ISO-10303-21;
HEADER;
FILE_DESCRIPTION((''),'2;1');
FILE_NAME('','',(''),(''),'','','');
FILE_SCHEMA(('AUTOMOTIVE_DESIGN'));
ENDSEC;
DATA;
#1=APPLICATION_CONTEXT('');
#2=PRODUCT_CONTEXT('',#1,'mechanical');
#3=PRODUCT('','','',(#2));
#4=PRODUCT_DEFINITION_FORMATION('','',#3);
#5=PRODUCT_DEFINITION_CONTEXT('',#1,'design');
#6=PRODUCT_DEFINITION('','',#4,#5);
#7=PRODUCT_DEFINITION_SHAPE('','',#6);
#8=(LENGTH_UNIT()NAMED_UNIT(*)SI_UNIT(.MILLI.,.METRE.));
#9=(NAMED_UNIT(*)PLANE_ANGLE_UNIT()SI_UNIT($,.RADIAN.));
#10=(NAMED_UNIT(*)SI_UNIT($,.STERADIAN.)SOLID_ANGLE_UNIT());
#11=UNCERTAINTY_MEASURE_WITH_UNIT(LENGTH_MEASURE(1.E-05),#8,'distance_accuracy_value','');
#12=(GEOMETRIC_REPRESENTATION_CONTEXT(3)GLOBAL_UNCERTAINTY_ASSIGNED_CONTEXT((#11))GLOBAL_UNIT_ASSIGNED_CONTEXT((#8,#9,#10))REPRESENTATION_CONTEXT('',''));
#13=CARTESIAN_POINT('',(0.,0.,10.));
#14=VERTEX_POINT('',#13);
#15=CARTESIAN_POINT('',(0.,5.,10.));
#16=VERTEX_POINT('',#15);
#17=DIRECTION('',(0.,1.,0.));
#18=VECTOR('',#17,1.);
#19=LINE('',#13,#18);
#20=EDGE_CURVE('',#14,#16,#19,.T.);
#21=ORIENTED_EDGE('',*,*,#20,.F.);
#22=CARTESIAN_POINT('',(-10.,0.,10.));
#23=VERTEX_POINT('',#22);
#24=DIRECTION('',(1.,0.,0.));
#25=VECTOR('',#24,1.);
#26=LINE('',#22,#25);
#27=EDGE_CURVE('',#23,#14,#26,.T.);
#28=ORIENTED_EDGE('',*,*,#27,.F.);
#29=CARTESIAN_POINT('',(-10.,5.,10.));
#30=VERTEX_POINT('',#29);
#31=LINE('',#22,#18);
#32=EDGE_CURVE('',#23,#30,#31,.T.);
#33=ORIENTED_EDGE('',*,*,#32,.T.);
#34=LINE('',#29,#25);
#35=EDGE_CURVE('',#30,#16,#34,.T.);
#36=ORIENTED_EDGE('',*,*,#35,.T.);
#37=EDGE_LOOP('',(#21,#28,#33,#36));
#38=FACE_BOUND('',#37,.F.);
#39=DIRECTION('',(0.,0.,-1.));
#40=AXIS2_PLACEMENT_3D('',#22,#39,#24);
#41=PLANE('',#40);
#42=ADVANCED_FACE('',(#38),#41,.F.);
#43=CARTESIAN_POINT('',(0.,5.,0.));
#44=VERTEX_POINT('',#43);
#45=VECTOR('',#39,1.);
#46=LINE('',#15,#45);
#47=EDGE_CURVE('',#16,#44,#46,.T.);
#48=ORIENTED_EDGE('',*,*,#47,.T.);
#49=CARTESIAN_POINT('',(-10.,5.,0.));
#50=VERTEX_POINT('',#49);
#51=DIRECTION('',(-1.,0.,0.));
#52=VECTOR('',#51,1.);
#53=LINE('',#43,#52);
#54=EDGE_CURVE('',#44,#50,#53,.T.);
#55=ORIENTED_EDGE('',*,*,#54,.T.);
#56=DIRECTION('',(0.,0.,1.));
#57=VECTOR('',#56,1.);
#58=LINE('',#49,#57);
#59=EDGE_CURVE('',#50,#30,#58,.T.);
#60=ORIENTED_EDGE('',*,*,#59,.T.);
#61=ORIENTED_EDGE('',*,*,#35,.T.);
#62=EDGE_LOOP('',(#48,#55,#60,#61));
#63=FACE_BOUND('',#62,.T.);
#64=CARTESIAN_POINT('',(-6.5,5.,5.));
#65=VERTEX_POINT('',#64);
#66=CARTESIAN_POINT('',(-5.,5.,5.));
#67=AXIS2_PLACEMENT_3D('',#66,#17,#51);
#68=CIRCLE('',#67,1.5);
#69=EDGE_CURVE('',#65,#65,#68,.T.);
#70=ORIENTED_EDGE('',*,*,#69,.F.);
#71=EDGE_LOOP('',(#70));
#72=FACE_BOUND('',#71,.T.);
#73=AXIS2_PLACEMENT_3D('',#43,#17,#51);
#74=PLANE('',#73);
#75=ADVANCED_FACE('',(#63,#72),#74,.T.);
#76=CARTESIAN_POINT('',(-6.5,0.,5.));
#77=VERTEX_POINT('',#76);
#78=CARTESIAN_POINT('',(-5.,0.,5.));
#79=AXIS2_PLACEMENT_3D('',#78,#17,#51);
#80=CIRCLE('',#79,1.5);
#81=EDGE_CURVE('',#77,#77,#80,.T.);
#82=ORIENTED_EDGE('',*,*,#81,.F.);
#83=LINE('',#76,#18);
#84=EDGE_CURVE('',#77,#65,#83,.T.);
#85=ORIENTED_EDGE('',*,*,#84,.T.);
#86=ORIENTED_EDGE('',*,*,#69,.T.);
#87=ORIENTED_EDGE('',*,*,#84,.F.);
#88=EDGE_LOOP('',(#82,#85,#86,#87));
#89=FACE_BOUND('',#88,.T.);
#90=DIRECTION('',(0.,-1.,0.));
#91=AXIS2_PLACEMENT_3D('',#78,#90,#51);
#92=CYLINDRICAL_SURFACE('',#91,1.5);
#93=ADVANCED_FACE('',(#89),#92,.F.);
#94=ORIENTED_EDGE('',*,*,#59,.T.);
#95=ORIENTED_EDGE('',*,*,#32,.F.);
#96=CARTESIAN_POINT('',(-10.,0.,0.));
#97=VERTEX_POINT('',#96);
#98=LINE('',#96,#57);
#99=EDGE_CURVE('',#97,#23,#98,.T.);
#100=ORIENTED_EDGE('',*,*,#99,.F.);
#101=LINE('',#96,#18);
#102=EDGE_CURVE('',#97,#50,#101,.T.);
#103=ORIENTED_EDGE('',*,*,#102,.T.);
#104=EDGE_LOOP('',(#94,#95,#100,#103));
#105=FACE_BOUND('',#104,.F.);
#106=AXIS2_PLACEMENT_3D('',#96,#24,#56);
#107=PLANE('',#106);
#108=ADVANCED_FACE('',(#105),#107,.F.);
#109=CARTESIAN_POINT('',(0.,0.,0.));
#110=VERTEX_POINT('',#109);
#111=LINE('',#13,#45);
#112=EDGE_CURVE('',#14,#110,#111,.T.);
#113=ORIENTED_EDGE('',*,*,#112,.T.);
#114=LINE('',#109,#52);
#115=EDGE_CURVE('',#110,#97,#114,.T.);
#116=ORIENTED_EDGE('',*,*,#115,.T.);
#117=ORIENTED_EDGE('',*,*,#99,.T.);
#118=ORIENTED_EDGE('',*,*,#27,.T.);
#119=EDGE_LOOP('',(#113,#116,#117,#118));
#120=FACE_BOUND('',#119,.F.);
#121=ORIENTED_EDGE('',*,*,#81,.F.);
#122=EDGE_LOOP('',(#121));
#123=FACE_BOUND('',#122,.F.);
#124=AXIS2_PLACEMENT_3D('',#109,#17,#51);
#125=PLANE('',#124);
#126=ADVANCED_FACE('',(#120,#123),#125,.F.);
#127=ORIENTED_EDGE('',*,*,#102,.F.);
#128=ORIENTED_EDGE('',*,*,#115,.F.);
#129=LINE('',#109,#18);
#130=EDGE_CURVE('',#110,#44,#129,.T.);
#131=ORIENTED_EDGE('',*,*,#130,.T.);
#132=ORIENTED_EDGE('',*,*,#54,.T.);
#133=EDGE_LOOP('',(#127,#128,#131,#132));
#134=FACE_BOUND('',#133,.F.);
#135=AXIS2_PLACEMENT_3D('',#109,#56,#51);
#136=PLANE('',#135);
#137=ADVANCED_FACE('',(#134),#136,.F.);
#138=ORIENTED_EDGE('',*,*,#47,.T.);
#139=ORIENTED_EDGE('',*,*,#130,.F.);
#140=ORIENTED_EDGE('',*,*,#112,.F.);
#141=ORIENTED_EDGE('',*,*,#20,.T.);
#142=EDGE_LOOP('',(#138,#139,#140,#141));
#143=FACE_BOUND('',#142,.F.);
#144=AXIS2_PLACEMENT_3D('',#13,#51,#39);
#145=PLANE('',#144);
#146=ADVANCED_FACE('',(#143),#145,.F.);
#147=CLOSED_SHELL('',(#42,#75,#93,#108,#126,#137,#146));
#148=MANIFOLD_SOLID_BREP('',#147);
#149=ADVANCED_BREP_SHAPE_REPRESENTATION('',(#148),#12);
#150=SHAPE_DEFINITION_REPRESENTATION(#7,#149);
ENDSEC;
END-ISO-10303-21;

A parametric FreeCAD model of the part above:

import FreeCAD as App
import Part
import Sketcher
Q = App.Units.Quantity

doc = App.newDocument("Part")
params = doc.addObject("Spreadsheet::Sheet", "Params")
for row, (alias, value) in enumerate([
    ("sketch1_diameter", "3 mm"),
    ("sketch1_width", "10 mm"),
    ("pad1_length", "5 mm"),
], start=1):
    params.set(f"A{row}", alias)
    params.set(f"B{row}", "=" + value)
    params.setAlias(f"B{row}", alias)

body = doc.addObject("PartDesign::Body", "Body")

sketch1 = body.newObject("Sketcher::SketchObject", "Sketch")
sketch1.AttachmentSupport = (doc.getObject("XZ_Plane"), [""])
sketch1.MapMode = "FlatFace"
sketch1.addGeometry([
    Part.LineSegment(App.Vector(0, 10, 0), App.Vector(0, 0, 0)),
    Part.LineSegment(App.Vector(0, 0, 0), App.Vector(-10, 0, 0)),
    Part.LineSegment(App.Vector(-10, 0, 0), App.Vector(-10, 10, 0)),
    Part.LineSegment(App.Vector(-10, 10, 0), App.Vector(0, 10, 0)),
    Part.Circle(App.Vector(-5, 5, 0), App.Vector(0, 0, 1), 1.5),
], False)
sketch1.addConstraint([
    Sketcher.Constraint("Coincident", 0, 2, 1, 1),
    Sketcher.Constraint("Coincident", 1, 2, 2, 1),
    Sketcher.Constraint("Coincident", 2, 2, 3, 1),
    Sketcher.Constraint("Coincident", 3, 2, 0, 1),
    Sketcher.Constraint("Vertical", 0),
    Sketcher.Constraint("Horizontal", 1),
    Sketcher.Constraint("Vertical", 2),
    Sketcher.Constraint("Horizontal", 3),
    Sketcher.Constraint("Coincident", 0, 2, -1, 1),
    Sketcher.Constraint("Equal", 3, 0),
    Sketcher.Constraint("Diameter", 4, Q("3 mm")),
    Sketcher.Constraint("DistanceX", 1, 2, 1, 1, Q("10 mm")),
    Sketcher.Constraint("DistanceX", 4, 3, -1, 1, Q("5 mm")),
    Sketcher.Constraint("DistanceY", -1, 1, 4, 3, Q("5 mm")),
])
sketch1.setExpression("Constraints[10]", "Params.sketch1_diameter")
sketch1.setExpression("Constraints[11]", "Params.sketch1_width")
pad1 = body.newObject("PartDesign::Pad", "Pad")
pad1.Profile = sketch1
pad1.setExpression("Length", "Params.pad1_length")
pad1.Reversed = True

doc.recompute()
